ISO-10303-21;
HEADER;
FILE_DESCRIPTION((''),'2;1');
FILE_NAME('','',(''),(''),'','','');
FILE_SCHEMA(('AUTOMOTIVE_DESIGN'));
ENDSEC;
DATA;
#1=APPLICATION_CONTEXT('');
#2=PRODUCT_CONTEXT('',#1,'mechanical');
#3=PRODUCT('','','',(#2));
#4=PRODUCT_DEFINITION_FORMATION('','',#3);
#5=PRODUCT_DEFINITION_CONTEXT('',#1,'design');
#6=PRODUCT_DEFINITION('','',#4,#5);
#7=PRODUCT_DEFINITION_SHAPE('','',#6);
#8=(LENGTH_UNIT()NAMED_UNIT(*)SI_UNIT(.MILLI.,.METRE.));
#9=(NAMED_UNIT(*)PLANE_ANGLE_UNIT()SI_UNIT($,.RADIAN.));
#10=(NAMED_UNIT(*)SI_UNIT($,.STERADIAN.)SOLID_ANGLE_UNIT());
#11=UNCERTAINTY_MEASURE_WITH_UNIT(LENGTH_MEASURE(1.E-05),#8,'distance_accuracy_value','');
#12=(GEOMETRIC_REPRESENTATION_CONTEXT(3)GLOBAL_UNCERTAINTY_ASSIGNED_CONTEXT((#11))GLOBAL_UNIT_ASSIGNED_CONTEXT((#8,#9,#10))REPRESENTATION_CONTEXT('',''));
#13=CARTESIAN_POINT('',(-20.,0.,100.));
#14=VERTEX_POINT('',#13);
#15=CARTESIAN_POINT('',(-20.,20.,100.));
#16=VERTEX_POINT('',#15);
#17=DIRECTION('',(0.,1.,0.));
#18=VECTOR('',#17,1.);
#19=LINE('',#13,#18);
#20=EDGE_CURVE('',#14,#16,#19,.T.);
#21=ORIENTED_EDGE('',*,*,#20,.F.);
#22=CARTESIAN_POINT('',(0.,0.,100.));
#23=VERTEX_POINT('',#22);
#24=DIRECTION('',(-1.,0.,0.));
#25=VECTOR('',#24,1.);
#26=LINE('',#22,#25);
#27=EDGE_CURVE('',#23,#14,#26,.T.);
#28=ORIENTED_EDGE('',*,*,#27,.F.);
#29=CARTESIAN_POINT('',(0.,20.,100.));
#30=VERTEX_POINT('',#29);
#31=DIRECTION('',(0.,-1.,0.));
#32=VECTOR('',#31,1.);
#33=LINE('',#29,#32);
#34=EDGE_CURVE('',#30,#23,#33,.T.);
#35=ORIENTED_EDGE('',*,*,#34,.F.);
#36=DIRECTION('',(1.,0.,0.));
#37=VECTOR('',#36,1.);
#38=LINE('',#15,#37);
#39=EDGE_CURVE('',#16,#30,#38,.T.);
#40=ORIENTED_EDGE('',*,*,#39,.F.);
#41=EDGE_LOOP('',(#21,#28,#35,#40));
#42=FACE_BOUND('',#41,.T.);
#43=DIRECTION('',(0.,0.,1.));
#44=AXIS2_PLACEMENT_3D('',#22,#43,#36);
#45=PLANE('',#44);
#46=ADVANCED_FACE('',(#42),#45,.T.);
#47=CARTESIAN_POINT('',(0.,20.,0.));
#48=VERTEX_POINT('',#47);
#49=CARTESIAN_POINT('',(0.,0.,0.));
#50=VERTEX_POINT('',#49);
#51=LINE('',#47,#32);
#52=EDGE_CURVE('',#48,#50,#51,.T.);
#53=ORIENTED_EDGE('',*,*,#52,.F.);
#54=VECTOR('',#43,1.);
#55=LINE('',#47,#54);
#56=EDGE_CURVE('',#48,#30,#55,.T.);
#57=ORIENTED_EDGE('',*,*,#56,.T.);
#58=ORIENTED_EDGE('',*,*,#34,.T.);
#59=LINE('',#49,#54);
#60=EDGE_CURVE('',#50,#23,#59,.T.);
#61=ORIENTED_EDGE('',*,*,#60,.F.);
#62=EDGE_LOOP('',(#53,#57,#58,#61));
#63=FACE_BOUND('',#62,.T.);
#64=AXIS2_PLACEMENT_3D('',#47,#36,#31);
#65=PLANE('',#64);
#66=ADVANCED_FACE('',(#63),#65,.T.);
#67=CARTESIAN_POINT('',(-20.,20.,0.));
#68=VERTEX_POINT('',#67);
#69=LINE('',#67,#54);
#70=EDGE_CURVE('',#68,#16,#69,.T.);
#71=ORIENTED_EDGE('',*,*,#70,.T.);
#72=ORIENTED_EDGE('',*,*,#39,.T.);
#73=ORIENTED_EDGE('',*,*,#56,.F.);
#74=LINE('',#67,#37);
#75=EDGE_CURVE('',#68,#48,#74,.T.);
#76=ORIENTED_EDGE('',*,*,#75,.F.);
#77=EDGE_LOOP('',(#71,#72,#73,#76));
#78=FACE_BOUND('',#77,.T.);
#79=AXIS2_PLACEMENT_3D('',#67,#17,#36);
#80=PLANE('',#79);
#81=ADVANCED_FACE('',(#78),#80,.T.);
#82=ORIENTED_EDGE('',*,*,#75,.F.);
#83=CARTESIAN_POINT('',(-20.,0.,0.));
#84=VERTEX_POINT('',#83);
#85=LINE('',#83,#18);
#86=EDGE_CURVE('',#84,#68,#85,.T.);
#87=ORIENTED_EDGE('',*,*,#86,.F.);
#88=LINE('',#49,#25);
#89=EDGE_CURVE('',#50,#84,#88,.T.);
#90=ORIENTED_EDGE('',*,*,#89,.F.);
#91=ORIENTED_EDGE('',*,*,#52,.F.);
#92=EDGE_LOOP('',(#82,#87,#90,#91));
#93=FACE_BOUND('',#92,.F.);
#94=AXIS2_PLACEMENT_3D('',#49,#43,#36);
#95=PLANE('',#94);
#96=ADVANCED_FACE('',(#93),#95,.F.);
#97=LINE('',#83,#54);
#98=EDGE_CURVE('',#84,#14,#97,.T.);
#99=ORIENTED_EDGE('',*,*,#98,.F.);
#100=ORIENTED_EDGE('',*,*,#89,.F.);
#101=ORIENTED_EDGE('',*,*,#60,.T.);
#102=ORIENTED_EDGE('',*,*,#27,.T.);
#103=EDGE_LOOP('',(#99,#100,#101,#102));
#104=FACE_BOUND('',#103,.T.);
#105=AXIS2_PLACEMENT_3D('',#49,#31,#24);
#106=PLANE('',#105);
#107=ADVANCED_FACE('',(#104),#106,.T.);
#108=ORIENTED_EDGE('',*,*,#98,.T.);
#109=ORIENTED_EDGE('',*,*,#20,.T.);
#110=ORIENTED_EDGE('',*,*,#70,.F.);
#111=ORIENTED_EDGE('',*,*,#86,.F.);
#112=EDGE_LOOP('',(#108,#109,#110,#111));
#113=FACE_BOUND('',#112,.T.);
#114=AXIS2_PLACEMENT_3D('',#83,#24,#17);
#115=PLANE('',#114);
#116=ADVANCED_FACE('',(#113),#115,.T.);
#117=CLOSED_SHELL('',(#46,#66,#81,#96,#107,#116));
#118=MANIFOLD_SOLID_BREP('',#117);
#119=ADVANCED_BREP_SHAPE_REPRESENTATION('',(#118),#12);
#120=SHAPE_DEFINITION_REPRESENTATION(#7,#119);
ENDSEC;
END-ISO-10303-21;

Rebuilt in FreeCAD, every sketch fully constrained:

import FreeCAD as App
import Part
import Sketcher
from FreeCAD import Vector
Q = App.Units.Quantity


def add_polygon(sketch, points):
    """Adds a closed chain of lines whose ends are joined by coincident constraints."""
    first, n = sketch.GeometryCount, len(points)
    for a, b in zip(points, points[1:] + points[:1]):
        sketch.addGeometry(Part.LineSegment(App.Vector(*a, 0), App.Vector(*b, 0)), False)
    for i in range(n):
        sketch.addConstraint(Sketcher.Constraint("Coincident", first + i, 2, first + (i + 1) % n, 1))

doc = App.newDocument("Part")
body = doc.addObject("PartDesign::Body", "Body")

# Sketch on XY plane
sketch1 = body.newObject("Sketcher::SketchObject", "Sketch")
sketch1.AttachmentSupport = (doc.getObject("XY_Plane"), [""])
sketch1.MapMode = "FlatFace"
add_polygon(sketch1, [(-20, 0), (0, 0), (0, 20), (-20, 20)])  # lines 0-3
sketch1.addConstraint(Sketcher.Constraint("Horizontal", 0))
sketch1.addConstraint(Sketcher.Constraint("Vertical", 1))
sketch1.addConstraint(Sketcher.Constraint("Horizontal", 2))
sketch1.addConstraint(Sketcher.Constraint("Vertical", 3))
sketch1.addConstraint(Sketcher.Constraint("Coincident", 0, 2, -1, 1))
sketch1.addConstraint(Sketcher.Constraint("Equal", 2, 1))
sketch1.addConstraint(Sketcher.Constraint("DistanceX", 0, 1, 0, 2, Q("0.7874 in")))
pad1 = body.newObject("PartDesign::Pad", "Pad")
pad1.Profile = sketch1
pad1.Length = Q("3.9370079 in")

doc.recompute()
